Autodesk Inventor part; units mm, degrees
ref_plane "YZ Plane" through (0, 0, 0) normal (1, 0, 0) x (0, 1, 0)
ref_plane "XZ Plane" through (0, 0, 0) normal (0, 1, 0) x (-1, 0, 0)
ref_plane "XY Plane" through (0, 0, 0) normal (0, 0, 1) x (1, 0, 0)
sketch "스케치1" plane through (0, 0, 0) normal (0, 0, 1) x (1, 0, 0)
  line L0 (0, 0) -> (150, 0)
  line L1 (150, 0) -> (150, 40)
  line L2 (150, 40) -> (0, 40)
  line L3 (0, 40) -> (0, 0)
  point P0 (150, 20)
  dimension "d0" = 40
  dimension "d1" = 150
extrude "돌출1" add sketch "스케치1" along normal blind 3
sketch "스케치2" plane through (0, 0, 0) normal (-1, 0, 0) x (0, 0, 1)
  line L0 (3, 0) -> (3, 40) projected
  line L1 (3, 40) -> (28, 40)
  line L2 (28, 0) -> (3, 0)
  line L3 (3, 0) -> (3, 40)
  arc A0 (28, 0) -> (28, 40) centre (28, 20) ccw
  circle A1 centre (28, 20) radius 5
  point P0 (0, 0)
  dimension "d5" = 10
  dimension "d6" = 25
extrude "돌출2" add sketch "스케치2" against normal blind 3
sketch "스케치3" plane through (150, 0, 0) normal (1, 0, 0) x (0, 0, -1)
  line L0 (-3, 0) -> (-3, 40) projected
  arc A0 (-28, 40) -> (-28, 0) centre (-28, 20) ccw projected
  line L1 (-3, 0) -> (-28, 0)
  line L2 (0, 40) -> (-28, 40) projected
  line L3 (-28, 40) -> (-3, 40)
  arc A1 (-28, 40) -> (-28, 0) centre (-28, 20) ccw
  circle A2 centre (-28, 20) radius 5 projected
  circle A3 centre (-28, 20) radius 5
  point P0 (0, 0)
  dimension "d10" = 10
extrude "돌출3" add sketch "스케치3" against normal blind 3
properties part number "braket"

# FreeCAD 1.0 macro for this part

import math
import FreeCAD as App
import Part
import Sketcher

V = App.Vector
Q = App.Units.Quantity

doc = App.newDocument("Part")
body = doc.addObject("PartDesign::Body", "Body")

sketch1 = doc.addObject("Sketcher::SketchObject", "Sketch")
body.addObject(sketch1)
sketch1.AttachmentSupport = (doc.XY_Plane, [""])
sketch1.MapMode = "FlatFace"
sketch1.addGeometry([
    Part.LineSegment(V(0, 40, 0), V(0, 0, 0)),
    Part.LineSegment(V(0, 0, 0), V(150, 0, 0)),
    Part.LineSegment(V(150, 0, 0), V(150, 40, 0)),
    Part.LineSegment(V(150, 40, 0), V(0, 40, 0)),
], False)
sketch1.addConstraint([
    Sketcher.Constraint("Coincident", 0, 2, 1, 1),
    Sketcher.Constraint("Coincident", 1, 2, 2, 1),
    Sketcher.Constraint("Coincident", 2, 2, 3, 1),
    Sketcher.Constraint("Coincident", 3, 2, 0, 1),
    Sketcher.Constraint("Vertical", 0),
    Sketcher.Constraint("Horizontal", 1),
    Sketcher.Constraint("Vertical", 2),
    Sketcher.Constraint("Horizontal", 3),
    Sketcher.Constraint("Coincident", 0, 2, -1, 1),
    Sketcher.Constraint("DistanceX", 1, 1, 1, 2, Q("150 mm")),
    Sketcher.Constraint("DistanceY", 0, 2, 0, 1, Q("40 mm")),
])
pad1 = doc.addObject("PartDesign::Pad", "Pad")
body.addObject(pad1)
pad1.Profile = sketch1
pad1.Length = 3

sketch2 = doc.addObject("Sketcher::SketchObject", "Sketch001")
body.addObject(sketch2)
sketch2.AttachmentSupport = (doc.YZ_Plane, [""])
sketch2.MapMode = "FlatFace"
sketch2.addGeometry([
    Part.LineSegment(V(40, 3, 0), V(0, 3, 0)),
    Part.LineSegment(V(0, 3, 0), V(0, 28, 0)),
    Part.ArcOfCircle(Part.Circle(V(20, 28, 0), V(0, 0, 1), 20), math.radians(0), math.radians(180)),
    Part.LineSegment(V(40, 28, 0), V(40, 3, 0)),
    Part.Circle(V(20, 28, 0), V(0, 0, 1), 5),
], False)
sketch2.addConstraint([
    Sketcher.Constraint("Coincident", 0, 2, 1, 1),
    Sketcher.Constraint("Tangent", 1, 2, 2, 2),
    Sketcher.Constraint("Tangent", 2, 1, 3, 1),
    Sketcher.Constraint("Coincident", 3, 2, 0, 1),
    Sketcher.Constraint("Horizontal", 0),
    Sketcher.Constraint("Vertical", 1),
    Sketcher.Constraint("Vertical", 3),
    Sketcher.Constraint("Coincident", 4, 3, 2, 3),
    Sketcher.Constraint("PointOnObject", 0, 2, -2),
    Sketcher.Constraint("Diameter", 4, Q("10 mm")),
    Sketcher.Constraint("DistanceY", 1, 1, 1, 2, Q("25 mm")),
    Sketcher.Constraint("Radius", 2, Q("20 mm")),
    Sketcher.Constraint("DistanceY", -1, 1, 2, 3, Q("28 mm")),
])
pad2 = doc.addObject("PartDesign::Pad", "Pad001")
body.addObject(pad2)
pad2.Profile = sketch2
pad2.Length = 3

sketch3 = doc.addObject("Sketcher::SketchObject", "Sketch002")
body.addObject(sketch3)
sketch3.AttachmentSupport = (doc.YZ_Plane, [""])
sketch3.MapMode = "FlatFace"
sketch3.AttachmentOffset = App.Placement(V(0, 0, 150), App.Rotation())
sketch3.addGeometry([
    Part.LineSegment(V(0, 28, 0), V(0, 3, 0)),
    Part.LineSegment(V(0, 3, 0), V(40, 3, 0)),
    Part.LineSegment(V(40, 3, 0), V(40, 28, 0)),
    Part.ArcOfCircle(Part.Circle(V(20, 28, 0), V(0, 0, 1), 20), math.radians(0), math.radians(180)),
    Part.Circle(V(20, 28, 0), V(0, 0, 1), 5),
], False)
sketch3.addConstraint([
    Sketcher.Constraint("Coincident", 0, 2, 1, 1),
    Sketcher.Constraint("Coincident", 1, 2, 2, 1),
    Sketcher.Constraint("Tangent", 2, 2, 3, 1),
    Sketcher.Constraint("Tangent", 3, 2, 0, 1),
    Sketcher.Constraint("Vertical", 0),
    Sketcher.Constraint("Horizontal", 1),
    Sketcher.Constraint("Vertical", 2),
    Sketcher.Constraint("Coincident", 4, 3, 3, 3),
    Sketcher.Constraint("PointOnObject", 0, 2, -2),
    Sketcher.Constraint("Diameter", 4, Q("10 mm")),
    Sketcher.Constraint("Radius", 3, Q("20 mm")),
    Sketcher.Constraint("DistanceY", 0, 2, 0, 1, Q("25 mm")),
    Sketcher.Constraint("DistanceY", -1, 1, 3, 3, Q("28 mm")),
])
pad3 = doc.addObject("PartDesign::Pad", "Pad002")
body.addObject(pad3)
pad3.Profile = sketch3
pad3.Length = 3
pad3.Reversed = True

doc.recompute()
